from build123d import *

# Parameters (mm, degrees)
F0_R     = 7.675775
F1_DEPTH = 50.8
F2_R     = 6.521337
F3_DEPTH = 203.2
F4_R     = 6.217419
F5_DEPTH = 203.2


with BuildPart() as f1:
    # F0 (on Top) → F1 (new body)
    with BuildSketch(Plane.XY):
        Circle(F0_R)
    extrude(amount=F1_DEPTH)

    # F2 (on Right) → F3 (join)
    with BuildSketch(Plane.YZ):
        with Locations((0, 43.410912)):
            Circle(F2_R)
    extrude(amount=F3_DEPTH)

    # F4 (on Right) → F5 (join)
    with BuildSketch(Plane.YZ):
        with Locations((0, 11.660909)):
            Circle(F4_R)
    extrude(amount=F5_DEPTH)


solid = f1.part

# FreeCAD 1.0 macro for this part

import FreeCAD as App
import Part
import Sketcher
from FreeCAD import Vector
Q = App.Units.Quantity

doc = App.newDocument("Part")
body = doc.addObject("PartDesign::Body", "Body")

# Sketch on XY plane
sketch1 = body.newObject("Sketcher::SketchObject", "Sketch")
sketch1.AttachmentSupport = (doc.getObject("XY_Plane"), [""])
sketch1.MapMode = "FlatFace"
sketch1.addGeometry(Part.Circle(Vector(0, 0, 0), Vector(0, 0, 1), 7.675775), False)
sketch1.addConstraint([
    Sketcher.Constraint("Coincident", 0, 3, -1, 1),
    Sketcher.Constraint("Diameter", 0, 15.35155),
])
pad1 = body.newObject("PartDesign::Pad", "Pad")
pad1.Profile = sketch1
pad1.Length = Q("2 in")

# Sketch on YZ plane
sketch2 = body.newObject("Sketcher::SketchObject", "Sketch001")
sketch2.AttachmentSupport = (doc.getObject("YZ_Plane"), [""])
sketch2.MapMode = "FlatFace"
sketch2.addGeometry(Part.Circle(Vector(0, 43.410912, 0), Vector(0, 0, 1), 6.521337), False)
sketch2.addConstraint([
    Sketcher.Constraint("PointOnObject", 0, 3, -2),
    Sketcher.Constraint("Diameter", 0, 13.042674),
    Sketcher.Constraint("DistanceY", -1, 1, 0, 3, 43.410912),
])
pad2 = body.newObject("PartDesign::Pad", "Pad001")
pad2.Profile = sketch2
pad2.Length = Q("8 in")

# Sketch on YZ plane
sketch3 = body.newObject("Sketcher::SketchObject", "Sketch002")
sketch3.AttachmentSupport = (doc.getObject("YZ_Plane"), [""])
sketch3.MapMode = "FlatFace"
sketch3.addGeometry(Part.Circle(Vector(0, 11.660909, 0), Vector(0, 0, 1), 6.217419), False)
sketch3.addConstraint([
    Sketcher.Constraint("PointOnObject", 0, 3, -2),
    Sketcher.Constraint("Diameter", 0, 12.434838),
    Sketcher.Constraint("DistanceY", -1, 1, 0, 3, 11.660909),
])
pad3 = body.newObject("PartDesign::Pad", "Pad002")
pad3.Profile = sketch3
pad3.Length = Q("8 in")

doc.recompute()
